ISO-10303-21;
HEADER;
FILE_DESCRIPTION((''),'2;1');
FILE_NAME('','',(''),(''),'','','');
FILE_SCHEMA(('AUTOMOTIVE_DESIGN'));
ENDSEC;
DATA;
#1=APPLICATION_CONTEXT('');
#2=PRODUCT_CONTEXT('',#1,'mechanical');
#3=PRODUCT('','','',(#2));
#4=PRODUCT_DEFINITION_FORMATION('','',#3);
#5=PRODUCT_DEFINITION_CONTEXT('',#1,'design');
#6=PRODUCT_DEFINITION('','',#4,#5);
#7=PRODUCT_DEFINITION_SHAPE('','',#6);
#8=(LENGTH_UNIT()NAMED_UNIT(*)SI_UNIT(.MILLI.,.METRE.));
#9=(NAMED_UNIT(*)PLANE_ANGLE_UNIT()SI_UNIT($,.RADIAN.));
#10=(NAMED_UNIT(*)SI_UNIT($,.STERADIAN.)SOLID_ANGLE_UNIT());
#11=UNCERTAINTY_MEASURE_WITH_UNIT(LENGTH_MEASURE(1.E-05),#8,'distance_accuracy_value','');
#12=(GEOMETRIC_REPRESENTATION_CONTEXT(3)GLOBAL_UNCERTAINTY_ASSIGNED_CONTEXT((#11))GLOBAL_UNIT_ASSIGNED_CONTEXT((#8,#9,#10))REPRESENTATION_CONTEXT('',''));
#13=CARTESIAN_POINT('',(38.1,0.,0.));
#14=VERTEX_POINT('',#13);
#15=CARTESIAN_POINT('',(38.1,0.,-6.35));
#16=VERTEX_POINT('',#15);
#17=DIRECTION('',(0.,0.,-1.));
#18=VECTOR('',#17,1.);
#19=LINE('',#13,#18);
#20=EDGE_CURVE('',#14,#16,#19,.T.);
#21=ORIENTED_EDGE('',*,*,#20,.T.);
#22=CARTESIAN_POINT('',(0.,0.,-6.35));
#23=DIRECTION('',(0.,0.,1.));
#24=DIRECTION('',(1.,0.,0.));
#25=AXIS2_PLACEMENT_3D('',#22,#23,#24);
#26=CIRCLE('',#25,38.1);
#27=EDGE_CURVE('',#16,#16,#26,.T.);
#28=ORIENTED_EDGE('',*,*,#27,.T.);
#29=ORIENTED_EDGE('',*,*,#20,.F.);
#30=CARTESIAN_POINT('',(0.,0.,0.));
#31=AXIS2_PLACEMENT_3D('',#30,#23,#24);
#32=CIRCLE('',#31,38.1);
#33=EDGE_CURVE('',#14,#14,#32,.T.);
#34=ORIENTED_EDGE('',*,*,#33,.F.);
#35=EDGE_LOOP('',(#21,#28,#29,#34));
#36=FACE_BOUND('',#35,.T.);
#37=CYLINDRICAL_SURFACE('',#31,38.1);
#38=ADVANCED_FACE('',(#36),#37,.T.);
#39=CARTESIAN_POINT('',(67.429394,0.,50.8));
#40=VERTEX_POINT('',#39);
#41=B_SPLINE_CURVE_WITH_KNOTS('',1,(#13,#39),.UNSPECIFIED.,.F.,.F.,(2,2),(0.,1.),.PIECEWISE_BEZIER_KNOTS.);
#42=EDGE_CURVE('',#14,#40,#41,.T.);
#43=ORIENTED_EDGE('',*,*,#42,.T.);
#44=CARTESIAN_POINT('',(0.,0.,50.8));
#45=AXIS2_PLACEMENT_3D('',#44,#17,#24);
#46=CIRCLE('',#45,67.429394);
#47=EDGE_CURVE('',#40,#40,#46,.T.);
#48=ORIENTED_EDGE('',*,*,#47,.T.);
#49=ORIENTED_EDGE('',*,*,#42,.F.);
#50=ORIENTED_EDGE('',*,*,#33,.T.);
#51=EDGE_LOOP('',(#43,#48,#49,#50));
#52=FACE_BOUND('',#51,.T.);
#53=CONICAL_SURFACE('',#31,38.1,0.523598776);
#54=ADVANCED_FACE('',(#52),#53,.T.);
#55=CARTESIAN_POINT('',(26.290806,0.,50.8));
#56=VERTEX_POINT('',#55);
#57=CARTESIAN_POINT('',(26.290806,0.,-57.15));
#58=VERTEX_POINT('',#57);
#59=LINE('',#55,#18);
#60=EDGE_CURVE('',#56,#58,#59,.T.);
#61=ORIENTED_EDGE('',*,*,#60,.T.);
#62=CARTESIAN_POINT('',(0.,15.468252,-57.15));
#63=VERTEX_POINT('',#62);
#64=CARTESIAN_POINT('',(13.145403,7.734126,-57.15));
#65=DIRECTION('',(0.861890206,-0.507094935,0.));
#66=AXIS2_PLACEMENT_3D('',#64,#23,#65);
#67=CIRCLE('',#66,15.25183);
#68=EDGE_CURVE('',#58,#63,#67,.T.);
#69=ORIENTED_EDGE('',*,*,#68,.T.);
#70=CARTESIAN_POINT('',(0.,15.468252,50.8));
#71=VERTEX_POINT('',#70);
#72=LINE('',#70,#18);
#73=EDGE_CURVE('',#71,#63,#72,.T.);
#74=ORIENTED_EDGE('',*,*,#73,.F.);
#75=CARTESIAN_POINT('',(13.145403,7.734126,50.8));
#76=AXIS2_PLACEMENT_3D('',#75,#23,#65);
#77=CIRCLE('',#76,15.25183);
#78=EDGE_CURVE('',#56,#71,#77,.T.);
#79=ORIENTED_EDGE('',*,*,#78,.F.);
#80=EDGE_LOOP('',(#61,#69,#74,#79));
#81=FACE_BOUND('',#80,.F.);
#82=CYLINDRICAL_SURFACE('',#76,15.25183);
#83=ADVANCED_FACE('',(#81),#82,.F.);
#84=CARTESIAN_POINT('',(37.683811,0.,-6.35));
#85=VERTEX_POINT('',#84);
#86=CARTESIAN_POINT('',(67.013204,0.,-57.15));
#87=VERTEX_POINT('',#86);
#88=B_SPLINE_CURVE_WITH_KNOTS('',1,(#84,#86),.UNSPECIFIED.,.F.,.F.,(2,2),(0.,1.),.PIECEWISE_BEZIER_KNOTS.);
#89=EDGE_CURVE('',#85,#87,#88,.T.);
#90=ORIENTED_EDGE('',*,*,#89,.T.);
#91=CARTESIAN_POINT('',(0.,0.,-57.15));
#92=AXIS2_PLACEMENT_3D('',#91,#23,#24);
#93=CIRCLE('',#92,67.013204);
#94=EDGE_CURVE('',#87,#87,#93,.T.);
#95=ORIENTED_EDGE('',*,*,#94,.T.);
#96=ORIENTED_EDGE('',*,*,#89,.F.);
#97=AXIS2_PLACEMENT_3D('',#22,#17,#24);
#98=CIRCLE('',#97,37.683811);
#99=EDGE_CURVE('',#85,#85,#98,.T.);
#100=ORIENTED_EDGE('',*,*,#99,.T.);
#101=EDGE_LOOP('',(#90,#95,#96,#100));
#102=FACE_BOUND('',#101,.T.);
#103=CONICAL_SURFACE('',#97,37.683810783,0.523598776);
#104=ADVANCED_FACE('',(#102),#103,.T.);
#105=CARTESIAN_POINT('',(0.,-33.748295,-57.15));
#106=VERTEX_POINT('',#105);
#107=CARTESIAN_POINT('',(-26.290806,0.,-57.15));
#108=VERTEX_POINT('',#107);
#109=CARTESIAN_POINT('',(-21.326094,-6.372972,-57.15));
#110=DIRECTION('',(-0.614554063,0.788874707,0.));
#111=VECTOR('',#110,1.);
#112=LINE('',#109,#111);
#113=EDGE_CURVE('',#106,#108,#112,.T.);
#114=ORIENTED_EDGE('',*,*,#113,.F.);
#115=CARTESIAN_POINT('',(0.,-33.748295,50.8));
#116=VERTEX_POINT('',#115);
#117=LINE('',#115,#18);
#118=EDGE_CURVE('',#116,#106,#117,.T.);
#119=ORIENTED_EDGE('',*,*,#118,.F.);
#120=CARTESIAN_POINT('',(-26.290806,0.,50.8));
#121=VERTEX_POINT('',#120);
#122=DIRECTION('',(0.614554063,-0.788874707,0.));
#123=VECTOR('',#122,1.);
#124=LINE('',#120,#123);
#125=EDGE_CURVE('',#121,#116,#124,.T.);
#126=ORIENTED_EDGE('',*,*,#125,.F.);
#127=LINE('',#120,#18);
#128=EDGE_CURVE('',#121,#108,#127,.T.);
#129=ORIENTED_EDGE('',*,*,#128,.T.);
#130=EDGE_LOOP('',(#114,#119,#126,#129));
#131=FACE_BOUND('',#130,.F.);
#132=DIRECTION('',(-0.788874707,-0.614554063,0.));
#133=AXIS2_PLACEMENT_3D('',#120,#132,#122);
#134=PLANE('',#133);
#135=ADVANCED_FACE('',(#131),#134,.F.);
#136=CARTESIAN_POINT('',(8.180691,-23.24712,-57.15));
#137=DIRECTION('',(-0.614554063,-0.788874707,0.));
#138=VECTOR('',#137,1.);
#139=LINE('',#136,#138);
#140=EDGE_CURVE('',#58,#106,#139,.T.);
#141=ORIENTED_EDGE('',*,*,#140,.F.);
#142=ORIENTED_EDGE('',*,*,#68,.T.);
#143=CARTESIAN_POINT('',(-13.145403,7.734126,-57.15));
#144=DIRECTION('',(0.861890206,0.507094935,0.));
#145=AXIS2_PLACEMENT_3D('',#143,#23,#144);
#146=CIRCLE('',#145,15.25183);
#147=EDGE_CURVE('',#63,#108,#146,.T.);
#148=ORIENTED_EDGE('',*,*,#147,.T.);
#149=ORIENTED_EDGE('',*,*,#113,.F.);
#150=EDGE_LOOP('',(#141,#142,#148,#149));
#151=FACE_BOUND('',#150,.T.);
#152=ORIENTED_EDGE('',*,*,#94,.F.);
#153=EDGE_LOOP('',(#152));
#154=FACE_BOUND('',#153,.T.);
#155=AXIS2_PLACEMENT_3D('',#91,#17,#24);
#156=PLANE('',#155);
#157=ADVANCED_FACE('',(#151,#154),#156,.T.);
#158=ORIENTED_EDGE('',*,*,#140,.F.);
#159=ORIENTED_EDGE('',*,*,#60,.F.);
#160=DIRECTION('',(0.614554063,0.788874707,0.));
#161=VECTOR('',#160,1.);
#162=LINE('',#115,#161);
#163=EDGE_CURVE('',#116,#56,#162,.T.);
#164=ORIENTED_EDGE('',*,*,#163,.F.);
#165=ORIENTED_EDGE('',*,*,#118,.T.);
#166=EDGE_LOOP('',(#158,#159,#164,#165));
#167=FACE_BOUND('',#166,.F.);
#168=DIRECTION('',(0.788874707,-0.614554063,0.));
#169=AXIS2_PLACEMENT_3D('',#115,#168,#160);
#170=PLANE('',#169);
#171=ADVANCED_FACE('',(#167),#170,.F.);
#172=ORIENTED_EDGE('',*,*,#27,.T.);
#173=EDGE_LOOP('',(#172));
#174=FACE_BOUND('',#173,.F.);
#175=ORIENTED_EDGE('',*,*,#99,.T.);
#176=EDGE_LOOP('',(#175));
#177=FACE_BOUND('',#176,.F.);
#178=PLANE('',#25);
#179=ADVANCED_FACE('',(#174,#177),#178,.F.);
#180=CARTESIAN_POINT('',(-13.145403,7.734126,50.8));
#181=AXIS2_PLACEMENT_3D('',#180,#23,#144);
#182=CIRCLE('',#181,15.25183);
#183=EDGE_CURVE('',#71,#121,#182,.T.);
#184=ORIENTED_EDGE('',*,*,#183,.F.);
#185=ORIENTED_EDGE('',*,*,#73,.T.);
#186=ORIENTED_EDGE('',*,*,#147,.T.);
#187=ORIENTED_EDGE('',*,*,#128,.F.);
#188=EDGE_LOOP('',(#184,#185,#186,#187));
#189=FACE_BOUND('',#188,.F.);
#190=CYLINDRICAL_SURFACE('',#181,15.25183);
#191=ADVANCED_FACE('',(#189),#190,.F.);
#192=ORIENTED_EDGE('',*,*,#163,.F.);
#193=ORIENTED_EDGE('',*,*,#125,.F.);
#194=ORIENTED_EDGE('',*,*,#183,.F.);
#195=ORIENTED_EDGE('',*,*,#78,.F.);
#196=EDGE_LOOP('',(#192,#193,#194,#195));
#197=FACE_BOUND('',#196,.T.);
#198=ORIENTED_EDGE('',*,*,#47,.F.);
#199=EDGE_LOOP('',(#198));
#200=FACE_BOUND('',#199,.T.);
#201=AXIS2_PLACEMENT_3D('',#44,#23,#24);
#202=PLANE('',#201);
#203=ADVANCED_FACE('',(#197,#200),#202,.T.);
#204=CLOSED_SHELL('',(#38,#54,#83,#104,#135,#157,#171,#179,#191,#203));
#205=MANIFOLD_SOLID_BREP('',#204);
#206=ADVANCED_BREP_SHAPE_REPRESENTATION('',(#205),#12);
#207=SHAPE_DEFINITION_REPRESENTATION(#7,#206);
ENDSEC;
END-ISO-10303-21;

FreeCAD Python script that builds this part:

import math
import FreeCAD as App
import Part
import Sketcher

V = App.Vector
Q = App.Units.Quantity

doc = App.newDocument("Part")
body = doc.addObject("PartDesign::Body", "Body")

# Sketch on XY plane
sketch1 = body.newObject("Sketcher::SketchObject", "Sketch")
sketch1.AttachmentSupport = (doc.getObject("XY_Plane"), [""])
sketch1.MapMode = "FlatFace"
sketch1.addGeometry(Part.Circle(V(0, 0, 0), V(0, 0, 1), 38), False)
sketch1.addConstraint([
    Sketcher.Constraint("Coincident", 0, 3, -1, 1),
    Sketcher.Constraint("Diameter", 0, Q("3 in")),
])
pad1 = body.newObject("PartDesign::Pad", "Pad")
pad1.Profile = sketch1
pad1.Length = Q("2 in")
pad1.TaperAngle = 30

# Sketch on XY plane
sketch2 = body.newObject("Sketcher::SketchObject", "Sketch001")
sketch2.AttachmentSupport = (doc.getObject("XY_Plane"), [""])
sketch2.MapMode = "FlatFace"
sketch2.addGeometry(Part.Circle(V(0, 0, 0), V(0, 0, 1), 38), False)
sketch2.addConstraint([
    Sketcher.Constraint("Coincident", 0, 3, -1, 1),
    Sketcher.Constraint("Diameter", 0, Q("3 in")),
])
pad2 = body.newObject("PartDesign::Pad", "Pad001")
pad2.Profile = sketch2
pad2.Length = Q("0.25 in")
pad2.Reversed = True

# Sketch on XY plane
sketch3 = body.newObject("Sketcher::SketchObject", "Sketch002")
sketch3.AttachmentSupport = (doc.getObject("XY_Plane"), [""])
sketch3.MapMode = "FlatFace"
sketch3.AttachmentOffset = App.Placement(V(0, 0, -0.25 * 25.4), App.Rotation())
sketch3.addGeometry(Part.Circle(V(0, 0, 0), V(0, 0, 1), 38), False)
sketch3.addConstraint([
    Sketcher.Constraint("Coincident", 0, 3, -1, 1),
    Sketcher.Constraint("Diameter", 0, Q("75.367622 mm")),
])
pad3 = body.newObject("PartDesign::Pad", "Pad002")
pad3.Profile = sketch3
pad3.Length = Q("2 in")
pad3.Reversed = True
pad3.TaperAngle = 30

# Sketch on XY plane
sketch4 = body.newObject("Sketcher::SketchObject", "Sketch003")
sketch4.AttachmentSupport = (doc.getObject("XY_Plane"), [""])
sketch4.MapMode = "FlatFace"
sketch4.AttachmentOffset = App.Placement(V(0, 0, 2 * 25.4), App.Rotation())
sketch4.addGeometry([
    Part.LineSegment(V(-26, 0, 0), V(0, -34, 0)),
    Part.LineSegment(V(0, -34, 0), V(26, 0, 0)),
    Part.ArcOfCircle(Part.Circle(V(13, 8, 0), V(0, 0, 1), 15), math.radians(-30), math.radians(150)),
    Part.ArcOfCircle(Part.Circle(V(-13, 8, 0), V(0, 0, 1), 15), math.radians(30), math.radians(210)),
], False)
sketch4.addConstraint([
    Sketcher.Constraint("Coincident", 0, 2, 1, 1),
    Sketcher.Constraint("Coincident", 1, 2, 2, 1),
    Sketcher.Constraint("Coincident", 2, 2, 3, 1),
    Sketcher.Constraint("Coincident", 3, 2, 0, 1),
    Sketcher.Constraint("Equal", 2, 3),
    Sketcher.Constraint("Symmetric", 1, 2, 3, 2, -1, 1),
    Sketcher.Constraint("Symmetric", 2, 3, 3, 3, -2),
    Sketcher.Constraint("PointOnObject", 0, 2, -2),
    Sketcher.Constraint("Radius", 2, Q("15.25183 mm")),
    Sketcher.Constraint("Distance", 0, Q("42.780298 mm")),
    Sketcher.Constraint("DistanceY", -1, 1, 2, 2, Q("15.468252 mm")),
    Sketcher.Constraint("DistanceY", 0, 2, 2, 3, Q("41.482421 mm")),
])
pocket1 = body.newObject("PartDesign::Pocket", "Pocket")
pocket1.Profile = sketch4
pocket1.Length = Q("5 in")

doc.recompute()
